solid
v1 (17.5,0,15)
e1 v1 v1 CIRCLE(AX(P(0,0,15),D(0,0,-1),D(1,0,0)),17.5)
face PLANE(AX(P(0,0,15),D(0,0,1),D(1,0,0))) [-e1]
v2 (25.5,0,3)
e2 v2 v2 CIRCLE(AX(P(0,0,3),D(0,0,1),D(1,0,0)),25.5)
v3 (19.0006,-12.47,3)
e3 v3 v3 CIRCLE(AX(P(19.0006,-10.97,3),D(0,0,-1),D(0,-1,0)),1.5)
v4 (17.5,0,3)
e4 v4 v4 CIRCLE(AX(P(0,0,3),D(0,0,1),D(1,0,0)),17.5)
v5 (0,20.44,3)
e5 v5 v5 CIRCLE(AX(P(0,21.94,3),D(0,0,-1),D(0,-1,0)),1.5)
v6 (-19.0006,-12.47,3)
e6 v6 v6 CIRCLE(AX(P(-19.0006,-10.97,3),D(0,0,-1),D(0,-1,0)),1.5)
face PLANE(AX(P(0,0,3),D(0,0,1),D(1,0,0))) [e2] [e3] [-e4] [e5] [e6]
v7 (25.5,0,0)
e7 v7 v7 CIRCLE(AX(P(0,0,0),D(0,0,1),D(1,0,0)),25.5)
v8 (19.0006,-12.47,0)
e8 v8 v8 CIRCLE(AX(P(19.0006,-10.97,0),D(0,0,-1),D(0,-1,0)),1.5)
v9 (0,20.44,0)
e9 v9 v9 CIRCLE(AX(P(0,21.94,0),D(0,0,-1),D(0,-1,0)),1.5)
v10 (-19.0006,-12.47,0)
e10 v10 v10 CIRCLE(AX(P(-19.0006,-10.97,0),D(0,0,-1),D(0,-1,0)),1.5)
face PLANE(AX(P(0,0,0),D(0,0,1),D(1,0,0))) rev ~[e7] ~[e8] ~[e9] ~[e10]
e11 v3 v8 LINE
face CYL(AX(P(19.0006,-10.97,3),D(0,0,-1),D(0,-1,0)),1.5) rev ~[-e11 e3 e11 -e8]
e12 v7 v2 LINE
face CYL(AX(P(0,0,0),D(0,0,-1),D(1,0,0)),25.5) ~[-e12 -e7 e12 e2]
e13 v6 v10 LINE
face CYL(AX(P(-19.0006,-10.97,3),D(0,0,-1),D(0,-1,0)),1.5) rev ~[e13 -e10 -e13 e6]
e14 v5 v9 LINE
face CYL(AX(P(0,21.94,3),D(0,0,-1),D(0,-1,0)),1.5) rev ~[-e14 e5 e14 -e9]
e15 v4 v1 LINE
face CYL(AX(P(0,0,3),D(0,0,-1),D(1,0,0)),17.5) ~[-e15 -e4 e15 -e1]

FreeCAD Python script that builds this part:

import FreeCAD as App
import Part
import Sketcher

V = App.Vector
Q = App.Units.Quantity

doc = App.newDocument("Part")
body = doc.addObject("PartDesign::Body", "Body")

sketch1 = body.newObject("Sketcher::SketchObject", "Sketch")
sketch1.AttachmentSupport = (doc.getObject("XY_Plane"), [""])
sketch1.MapMode = "FlatFace"
sketch1.addGeometry(Part.Circle(V(0, 0, 0), V(0, 0, 1), 26), False)
sketch1.addConstraint([
    Sketcher.Constraint("Coincident", 0, 3, -1, 1),
    Sketcher.Constraint("Diameter", 0, Q("51 mm")),
])
pad1 = body.newObject("PartDesign::Pad", "Pad")
pad1.Profile = sketch1
pad1.Length = 3

sketch2 = body.newObject("Sketcher::SketchObject", "Sketch001")
sketch2.AttachmentSupport = (doc.getObject("XY_Plane"), [""])
sketch2.MapMode = "FlatFace"
sketch2.AttachmentOffset = App.Placement(V(0, 0, 3), App.Rotation())
sketch2.addGeometry(Part.Circle(V(0, 0, 0), V(0, 0, 1), 18), False)
sketch2.addConstraint([
    Sketcher.Constraint("Coincident", 0, 3, -1, 1),
    Sketcher.Constraint("Diameter", 0, Q("35 mm")),
])
pad2 = body.newObject("PartDesign::Pad", "Pad001")
pad2.Profile = sketch2
pad2.Length = 12

sketch3 = body.newObject("Sketcher::SketchObject", "Sketch002")
sketch3.AttachmentSupport = (doc.getObject("XY_Plane"), [""])
sketch3.MapMode = "FlatFace"
sketch3.AttachmentOffset = App.Placement(V(0, 0, 3), App.Rotation())
sketch3.addGeometry([
    Part.Circle(V(0, 21.9, 0), V(0, 0, 1), 1.5),
    Part.Circle(V(-19, -11, 0), V(0, 0, 1), 1.5),
    Part.Circle(V(19, -11, 0), V(0, 0, 1), 1.5),
], False)
sketch3.addConstraint([
    Sketcher.Constraint("Equal", 0, 1),
    Sketcher.Constraint("Equal", 1, 2),
    Sketcher.Constraint("Symmetric", 1, 3, 2, 3, -2),
    Sketcher.Constraint("PointOnObject", 0, 3, -2),
    Sketcher.Constraint("Diameter", 0, Q("3 mm")),
    Sketcher.Constraint("DistanceY", -1, 1, 0, 3, Q("21.94 mm")),
    Sketcher.Constraint("DistanceY", 1, 3, -1, 1, Q("10.97 mm")),
    Sketcher.Constraint("DistanceX", 1, 3, -1, 1, Q("19.0006 mm")),
])
doc.recompute()
hole = body.newObject("PartDesign::Hole", "Hole")
hole.Profile = sketch3
hole.ThreadType = "None"
hole.Diameter = 3
hole.DepthType = "ThroughAll"

doc.recompute()
